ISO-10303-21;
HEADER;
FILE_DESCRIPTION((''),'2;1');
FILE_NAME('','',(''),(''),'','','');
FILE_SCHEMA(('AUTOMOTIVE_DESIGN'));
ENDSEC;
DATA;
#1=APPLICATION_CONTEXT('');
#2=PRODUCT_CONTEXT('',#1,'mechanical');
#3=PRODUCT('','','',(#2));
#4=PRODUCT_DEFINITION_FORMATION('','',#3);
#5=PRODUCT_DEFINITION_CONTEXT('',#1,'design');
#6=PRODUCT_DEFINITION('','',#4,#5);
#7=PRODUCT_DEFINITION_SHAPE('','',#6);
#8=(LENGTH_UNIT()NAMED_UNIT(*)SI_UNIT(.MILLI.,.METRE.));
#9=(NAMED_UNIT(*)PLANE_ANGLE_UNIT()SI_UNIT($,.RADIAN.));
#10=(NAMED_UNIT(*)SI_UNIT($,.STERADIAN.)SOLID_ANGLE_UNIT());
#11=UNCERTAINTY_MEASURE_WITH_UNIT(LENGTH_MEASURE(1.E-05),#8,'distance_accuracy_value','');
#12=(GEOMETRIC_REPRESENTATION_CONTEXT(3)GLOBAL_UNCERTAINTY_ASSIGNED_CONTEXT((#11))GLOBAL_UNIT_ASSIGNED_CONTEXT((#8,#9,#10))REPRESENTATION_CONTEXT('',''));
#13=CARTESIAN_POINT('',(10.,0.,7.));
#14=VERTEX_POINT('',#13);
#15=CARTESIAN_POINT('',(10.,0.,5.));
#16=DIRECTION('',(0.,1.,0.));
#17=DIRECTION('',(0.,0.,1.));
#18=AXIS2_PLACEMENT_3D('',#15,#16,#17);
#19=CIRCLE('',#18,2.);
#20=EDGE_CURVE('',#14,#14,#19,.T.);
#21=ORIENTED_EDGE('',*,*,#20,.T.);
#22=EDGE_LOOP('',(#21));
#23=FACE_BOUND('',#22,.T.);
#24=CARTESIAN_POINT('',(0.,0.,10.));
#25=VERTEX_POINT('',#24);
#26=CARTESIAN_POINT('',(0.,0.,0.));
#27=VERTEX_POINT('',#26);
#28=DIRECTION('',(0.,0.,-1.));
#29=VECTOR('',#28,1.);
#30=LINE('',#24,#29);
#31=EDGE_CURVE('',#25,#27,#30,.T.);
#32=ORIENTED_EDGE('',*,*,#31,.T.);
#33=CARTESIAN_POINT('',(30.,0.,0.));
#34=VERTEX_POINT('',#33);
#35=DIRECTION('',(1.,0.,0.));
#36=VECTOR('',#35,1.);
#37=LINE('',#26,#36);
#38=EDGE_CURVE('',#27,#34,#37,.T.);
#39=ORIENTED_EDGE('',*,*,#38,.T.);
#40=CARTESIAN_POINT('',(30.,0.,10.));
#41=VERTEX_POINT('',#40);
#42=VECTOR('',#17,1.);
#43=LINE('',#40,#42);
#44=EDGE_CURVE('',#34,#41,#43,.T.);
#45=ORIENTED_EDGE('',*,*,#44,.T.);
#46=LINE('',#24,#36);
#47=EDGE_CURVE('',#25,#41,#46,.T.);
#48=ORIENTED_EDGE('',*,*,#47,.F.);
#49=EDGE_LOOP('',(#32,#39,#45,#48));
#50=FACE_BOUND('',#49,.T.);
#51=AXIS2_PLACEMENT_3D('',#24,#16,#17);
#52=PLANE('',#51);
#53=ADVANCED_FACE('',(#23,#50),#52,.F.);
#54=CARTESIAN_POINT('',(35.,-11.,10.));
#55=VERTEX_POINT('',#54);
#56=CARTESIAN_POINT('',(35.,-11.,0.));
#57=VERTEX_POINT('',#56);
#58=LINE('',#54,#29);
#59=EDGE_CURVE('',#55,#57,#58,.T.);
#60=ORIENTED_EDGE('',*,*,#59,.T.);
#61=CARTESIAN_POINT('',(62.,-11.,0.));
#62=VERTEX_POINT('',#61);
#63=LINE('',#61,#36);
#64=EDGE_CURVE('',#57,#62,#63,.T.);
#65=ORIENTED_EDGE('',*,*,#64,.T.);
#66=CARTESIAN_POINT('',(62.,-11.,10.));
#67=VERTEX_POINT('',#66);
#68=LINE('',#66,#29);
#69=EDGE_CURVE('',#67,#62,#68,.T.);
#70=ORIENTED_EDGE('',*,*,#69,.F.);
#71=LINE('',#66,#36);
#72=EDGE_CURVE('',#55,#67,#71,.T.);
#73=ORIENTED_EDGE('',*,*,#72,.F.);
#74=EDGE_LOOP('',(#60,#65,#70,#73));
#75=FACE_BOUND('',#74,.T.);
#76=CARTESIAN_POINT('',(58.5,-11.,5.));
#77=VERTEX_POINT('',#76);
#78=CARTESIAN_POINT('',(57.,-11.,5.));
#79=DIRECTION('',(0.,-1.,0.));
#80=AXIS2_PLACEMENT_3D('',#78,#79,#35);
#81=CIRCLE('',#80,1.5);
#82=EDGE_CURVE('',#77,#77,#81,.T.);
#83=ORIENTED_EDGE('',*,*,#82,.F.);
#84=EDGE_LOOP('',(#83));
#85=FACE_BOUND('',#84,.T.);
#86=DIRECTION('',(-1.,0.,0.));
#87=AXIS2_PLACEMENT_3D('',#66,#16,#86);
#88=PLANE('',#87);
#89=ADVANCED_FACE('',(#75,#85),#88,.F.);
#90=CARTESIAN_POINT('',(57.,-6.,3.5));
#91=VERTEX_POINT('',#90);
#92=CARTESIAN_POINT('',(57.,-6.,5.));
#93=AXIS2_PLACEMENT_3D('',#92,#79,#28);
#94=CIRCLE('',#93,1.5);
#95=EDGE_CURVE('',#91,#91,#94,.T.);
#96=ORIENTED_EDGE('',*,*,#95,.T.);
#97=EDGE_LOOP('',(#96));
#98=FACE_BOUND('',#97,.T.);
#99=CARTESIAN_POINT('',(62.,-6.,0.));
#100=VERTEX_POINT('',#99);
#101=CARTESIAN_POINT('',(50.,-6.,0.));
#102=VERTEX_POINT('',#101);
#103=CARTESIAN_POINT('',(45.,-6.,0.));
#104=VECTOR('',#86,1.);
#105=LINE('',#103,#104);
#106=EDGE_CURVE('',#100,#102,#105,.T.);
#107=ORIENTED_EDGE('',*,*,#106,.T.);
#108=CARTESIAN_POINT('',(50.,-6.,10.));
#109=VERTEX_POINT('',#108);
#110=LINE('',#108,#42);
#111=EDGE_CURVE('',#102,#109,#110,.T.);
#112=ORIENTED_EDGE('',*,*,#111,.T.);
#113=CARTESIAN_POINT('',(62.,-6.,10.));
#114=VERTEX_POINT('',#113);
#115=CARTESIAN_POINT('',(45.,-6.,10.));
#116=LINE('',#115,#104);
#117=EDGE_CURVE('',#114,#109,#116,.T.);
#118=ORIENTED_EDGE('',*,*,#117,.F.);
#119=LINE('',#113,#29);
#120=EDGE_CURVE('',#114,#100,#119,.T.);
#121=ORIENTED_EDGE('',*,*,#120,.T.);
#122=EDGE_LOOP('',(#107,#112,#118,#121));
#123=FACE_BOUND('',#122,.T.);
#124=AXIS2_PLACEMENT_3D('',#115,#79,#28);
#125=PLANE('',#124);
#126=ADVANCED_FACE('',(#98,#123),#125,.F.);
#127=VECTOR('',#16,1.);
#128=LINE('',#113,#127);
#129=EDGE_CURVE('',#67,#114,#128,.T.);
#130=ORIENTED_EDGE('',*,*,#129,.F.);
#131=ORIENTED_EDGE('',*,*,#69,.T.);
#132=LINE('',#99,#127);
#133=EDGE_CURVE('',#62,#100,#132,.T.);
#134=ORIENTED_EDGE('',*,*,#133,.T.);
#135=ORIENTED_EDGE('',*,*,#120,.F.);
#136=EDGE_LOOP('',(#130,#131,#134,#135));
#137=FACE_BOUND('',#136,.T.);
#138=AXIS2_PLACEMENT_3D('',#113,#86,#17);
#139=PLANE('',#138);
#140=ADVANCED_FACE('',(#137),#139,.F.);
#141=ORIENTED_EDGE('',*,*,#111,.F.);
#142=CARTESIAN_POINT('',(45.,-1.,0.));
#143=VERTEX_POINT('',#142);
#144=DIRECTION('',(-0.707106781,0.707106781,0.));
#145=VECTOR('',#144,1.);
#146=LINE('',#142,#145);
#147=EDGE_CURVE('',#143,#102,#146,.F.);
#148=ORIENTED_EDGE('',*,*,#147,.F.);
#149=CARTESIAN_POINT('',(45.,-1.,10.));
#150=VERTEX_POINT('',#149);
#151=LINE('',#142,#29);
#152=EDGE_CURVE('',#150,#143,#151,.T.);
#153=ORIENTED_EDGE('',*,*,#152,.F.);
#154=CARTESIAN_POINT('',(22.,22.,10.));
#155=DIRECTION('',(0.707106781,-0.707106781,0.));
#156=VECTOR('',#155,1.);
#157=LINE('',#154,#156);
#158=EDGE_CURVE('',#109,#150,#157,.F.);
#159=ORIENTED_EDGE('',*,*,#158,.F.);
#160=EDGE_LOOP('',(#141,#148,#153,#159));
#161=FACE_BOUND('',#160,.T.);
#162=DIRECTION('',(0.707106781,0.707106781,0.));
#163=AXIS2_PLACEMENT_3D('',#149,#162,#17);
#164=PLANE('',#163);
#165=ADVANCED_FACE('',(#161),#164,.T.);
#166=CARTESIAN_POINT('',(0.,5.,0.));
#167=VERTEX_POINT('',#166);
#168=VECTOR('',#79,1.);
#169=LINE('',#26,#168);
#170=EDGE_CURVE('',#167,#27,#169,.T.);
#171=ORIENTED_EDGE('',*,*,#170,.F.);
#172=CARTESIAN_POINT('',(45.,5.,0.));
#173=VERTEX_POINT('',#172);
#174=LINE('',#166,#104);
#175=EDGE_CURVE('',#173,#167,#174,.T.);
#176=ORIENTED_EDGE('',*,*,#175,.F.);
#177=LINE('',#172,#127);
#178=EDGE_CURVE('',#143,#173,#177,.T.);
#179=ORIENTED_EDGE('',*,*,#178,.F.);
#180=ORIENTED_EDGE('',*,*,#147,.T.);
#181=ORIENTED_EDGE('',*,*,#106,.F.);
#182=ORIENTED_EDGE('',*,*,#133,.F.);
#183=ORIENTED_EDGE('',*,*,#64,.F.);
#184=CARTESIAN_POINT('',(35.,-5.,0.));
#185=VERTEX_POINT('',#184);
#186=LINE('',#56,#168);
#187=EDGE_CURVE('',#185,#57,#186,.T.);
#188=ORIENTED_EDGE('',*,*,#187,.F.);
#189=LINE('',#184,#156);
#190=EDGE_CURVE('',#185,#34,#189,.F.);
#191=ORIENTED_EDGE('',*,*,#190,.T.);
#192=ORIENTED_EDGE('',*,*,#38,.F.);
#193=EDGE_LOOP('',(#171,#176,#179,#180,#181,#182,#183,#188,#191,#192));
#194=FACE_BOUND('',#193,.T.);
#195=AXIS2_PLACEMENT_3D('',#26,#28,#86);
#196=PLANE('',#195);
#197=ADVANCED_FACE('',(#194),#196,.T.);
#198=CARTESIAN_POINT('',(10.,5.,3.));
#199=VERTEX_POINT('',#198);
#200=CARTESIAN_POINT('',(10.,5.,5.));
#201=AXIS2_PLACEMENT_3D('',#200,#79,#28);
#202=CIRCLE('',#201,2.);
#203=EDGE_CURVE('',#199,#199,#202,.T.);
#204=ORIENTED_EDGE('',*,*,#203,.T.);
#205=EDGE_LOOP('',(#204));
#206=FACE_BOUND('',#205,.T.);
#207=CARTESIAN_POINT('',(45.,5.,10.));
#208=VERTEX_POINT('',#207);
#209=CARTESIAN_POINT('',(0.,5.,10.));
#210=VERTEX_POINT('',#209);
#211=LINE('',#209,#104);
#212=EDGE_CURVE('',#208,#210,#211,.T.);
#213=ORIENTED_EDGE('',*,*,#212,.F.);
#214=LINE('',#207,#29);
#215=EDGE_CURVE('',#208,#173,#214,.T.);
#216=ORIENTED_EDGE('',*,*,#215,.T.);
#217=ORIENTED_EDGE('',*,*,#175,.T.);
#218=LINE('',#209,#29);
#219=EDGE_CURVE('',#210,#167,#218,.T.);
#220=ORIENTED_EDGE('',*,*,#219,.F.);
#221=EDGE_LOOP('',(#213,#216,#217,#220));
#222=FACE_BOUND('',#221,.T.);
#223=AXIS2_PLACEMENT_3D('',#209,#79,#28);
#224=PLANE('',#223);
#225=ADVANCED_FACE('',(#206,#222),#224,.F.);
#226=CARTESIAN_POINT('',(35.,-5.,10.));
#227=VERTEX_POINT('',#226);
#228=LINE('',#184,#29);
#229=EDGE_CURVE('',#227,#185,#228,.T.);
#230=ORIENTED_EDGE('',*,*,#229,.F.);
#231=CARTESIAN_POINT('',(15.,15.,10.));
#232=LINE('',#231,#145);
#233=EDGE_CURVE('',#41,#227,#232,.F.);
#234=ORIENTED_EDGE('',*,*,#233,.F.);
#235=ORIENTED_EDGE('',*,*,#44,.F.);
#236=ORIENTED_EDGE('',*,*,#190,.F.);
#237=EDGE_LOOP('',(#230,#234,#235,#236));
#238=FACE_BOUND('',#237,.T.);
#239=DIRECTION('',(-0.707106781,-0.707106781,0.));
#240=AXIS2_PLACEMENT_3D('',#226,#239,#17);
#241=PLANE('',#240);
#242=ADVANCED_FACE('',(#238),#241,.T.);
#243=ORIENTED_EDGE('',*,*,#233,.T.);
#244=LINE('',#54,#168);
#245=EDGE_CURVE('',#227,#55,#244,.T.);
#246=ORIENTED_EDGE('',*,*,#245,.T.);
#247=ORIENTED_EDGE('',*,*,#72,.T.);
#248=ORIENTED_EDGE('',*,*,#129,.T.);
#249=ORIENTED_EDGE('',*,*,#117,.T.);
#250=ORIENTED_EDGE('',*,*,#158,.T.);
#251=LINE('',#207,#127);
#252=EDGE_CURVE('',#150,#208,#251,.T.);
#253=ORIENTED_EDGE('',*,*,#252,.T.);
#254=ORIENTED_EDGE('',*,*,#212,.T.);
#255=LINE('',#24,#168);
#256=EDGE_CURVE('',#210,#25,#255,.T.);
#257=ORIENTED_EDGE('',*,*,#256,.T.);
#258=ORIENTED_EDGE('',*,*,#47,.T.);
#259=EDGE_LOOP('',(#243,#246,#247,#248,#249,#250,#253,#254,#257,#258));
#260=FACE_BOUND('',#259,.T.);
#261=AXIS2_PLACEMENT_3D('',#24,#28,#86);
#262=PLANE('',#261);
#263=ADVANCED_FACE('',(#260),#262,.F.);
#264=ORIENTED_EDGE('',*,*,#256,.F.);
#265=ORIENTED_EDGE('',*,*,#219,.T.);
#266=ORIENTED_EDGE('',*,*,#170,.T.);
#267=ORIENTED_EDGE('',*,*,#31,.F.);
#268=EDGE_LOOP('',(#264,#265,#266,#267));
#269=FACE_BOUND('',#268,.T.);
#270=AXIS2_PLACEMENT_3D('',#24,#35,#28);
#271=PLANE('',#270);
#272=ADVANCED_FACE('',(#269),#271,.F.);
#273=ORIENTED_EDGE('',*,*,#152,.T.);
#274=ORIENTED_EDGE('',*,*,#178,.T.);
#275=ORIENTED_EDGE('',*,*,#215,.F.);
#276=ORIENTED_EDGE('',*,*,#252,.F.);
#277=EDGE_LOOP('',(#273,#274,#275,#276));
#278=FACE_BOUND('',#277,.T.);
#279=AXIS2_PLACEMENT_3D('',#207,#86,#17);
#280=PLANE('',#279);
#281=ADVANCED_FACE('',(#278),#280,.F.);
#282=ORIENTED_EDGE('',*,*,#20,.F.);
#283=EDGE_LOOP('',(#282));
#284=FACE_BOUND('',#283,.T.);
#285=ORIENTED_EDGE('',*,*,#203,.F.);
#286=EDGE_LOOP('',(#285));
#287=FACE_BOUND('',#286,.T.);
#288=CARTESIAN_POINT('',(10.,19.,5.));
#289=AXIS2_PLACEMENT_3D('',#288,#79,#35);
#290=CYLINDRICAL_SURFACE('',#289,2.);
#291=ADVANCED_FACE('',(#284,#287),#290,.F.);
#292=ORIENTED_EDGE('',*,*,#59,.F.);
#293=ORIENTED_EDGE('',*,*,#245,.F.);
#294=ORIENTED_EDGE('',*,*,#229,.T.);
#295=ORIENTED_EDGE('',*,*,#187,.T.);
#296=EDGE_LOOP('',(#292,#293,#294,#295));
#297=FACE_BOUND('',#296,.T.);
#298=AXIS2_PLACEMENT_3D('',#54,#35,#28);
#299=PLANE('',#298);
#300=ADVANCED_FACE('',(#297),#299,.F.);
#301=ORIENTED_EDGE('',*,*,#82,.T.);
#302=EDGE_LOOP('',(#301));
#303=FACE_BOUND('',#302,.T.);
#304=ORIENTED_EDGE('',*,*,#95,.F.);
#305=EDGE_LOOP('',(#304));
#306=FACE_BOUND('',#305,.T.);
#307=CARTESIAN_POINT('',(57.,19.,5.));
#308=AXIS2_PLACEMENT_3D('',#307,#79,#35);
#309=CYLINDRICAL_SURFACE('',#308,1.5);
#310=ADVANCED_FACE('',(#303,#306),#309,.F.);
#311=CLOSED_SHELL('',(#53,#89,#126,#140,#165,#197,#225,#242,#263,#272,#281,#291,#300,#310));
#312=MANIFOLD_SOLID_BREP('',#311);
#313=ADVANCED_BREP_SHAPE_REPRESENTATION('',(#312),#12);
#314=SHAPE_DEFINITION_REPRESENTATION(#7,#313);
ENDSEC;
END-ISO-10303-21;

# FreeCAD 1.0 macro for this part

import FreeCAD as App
import Part
import Sketcher
Q = App.Units.Quantity


def edges_at(feature, points):
    """Names of the edges that pass closest to the given points."""
    edges = feature.Shape.Edges
    near = lambda p: min(range(len(edges)), key=lambda i: edges[i].distToShape(Part.Vertex(*p))[0])
    return sorted({f"Edge{near(p) + 1}" for p in points})


def add_polygon(sketch, points):
    """Adds a closed chain of lines whose ends are joined by coincident constraints."""
    first, n = sketch.GeometryCount, len(points)
    for a, b in zip(points, points[1:] + points[:1]):
        sketch.addGeometry(Part.LineSegment(App.Vector(*a, 0), App.Vector(*b, 0)), False)
    for i in range(n):
        sketch.addConstraint(Sketcher.Constraint("Coincident", first + i, 2, first + (i + 1) % n, 1))

doc = App.newDocument("Part")
body = doc.addObject("PartDesign::Body", "Body")

sketch1 = body.newObject("Sketcher::SketchObject", "Sketch")
sketch1.AttachmentSupport = (doc.getObject("XY_Plane"), [""])
sketch1.MapMode = "FlatFace"
add_polygon(sketch1, [(0, 0), (35, 0), (35, -11), (62, -11), (62, -6), (45, -6), (45, 5), (0, 5)])
sketch1.addConstraint([
    Sketcher.Constraint("Horizontal", 0),
    Sketcher.Constraint("Vertical", 1),
    Sketcher.Constraint("Horizontal", 2),
    Sketcher.Constraint("Vertical", 3),
    Sketcher.Constraint("Horizontal", 4),
    Sketcher.Constraint("Vertical", 5),
    Sketcher.Constraint("Horizontal", 6),
    Sketcher.Constraint("Vertical", 7),
    Sketcher.Constraint("Coincident", 7, 2, -1, 1),
    Sketcher.Constraint("Equal", 1, 5),
    Sketcher.Constraint("DistanceX", 0, 1, 0, 2, Q("35 mm")),
    Sketcher.Constraint("DistanceX", 2, 1, 2, 2, Q("27 mm")),
    Sketcher.Constraint("DistanceX", 4, 2, 4, 1, Q("17 mm")),
    Sketcher.Constraint("DistanceY", 1, 2, 1, 1, Q("11 mm")),
    Sketcher.Constraint("DistanceY", 3, 1, 3, 2, Q("5 mm")),
])
pad1 = body.newObject("PartDesign::Pad", "Pad")
pad1.Profile = sketch1
pad1.Length = 10

sketch2 = body.newObject("Sketcher::SketchObject", "Sketch001")
sketch2.AttachmentSupport = (doc.getObject("XZ_Plane"), [""])
sketch2.MapMode = "FlatFace"
sketch2.AttachmentOffset = App.Placement(App.Vector(0, 0, 11), App.Rotation())
sketch2.addGeometry([
    Part.Circle(App.Vector(10, 5, 0), App.Vector(0, 0, 1), 2),
    Part.Circle(App.Vector(57, 5, 0), App.Vector(0, 0, 1), 1.5),
], False)
sketch2.addConstraint([
    Sketcher.Constraint("Horizontal", 0, 3, 1, 3),
    Sketcher.Constraint("Diameter", 0, Q("4 mm")),
    Sketcher.Constraint("Diameter", 1, Q("3 mm")),
    Sketcher.Constraint("DistanceX", -1, 1, 0, 3, Q("10 mm")),
    Sketcher.Constraint("DistanceY", -1, 1, 0, 3, Q("5 mm")),
    Sketcher.Constraint("DistanceX", -1, 1, 1, 3, Q("57 mm")),
])
pocket1 = body.newObject("PartDesign::Pocket", "Pocket")
pocket1.Profile = sketch2
pocket1.Length = 30
doc.recompute()

chamfer = body.newObject("PartDesign::Chamfer", "Chamfer")
chamfer.Base = (pocket1, edges_at(pocket1, [(45, -6, 5), (35, 0, 5)]))
chamfer.Size = 5

doc.recompute()
